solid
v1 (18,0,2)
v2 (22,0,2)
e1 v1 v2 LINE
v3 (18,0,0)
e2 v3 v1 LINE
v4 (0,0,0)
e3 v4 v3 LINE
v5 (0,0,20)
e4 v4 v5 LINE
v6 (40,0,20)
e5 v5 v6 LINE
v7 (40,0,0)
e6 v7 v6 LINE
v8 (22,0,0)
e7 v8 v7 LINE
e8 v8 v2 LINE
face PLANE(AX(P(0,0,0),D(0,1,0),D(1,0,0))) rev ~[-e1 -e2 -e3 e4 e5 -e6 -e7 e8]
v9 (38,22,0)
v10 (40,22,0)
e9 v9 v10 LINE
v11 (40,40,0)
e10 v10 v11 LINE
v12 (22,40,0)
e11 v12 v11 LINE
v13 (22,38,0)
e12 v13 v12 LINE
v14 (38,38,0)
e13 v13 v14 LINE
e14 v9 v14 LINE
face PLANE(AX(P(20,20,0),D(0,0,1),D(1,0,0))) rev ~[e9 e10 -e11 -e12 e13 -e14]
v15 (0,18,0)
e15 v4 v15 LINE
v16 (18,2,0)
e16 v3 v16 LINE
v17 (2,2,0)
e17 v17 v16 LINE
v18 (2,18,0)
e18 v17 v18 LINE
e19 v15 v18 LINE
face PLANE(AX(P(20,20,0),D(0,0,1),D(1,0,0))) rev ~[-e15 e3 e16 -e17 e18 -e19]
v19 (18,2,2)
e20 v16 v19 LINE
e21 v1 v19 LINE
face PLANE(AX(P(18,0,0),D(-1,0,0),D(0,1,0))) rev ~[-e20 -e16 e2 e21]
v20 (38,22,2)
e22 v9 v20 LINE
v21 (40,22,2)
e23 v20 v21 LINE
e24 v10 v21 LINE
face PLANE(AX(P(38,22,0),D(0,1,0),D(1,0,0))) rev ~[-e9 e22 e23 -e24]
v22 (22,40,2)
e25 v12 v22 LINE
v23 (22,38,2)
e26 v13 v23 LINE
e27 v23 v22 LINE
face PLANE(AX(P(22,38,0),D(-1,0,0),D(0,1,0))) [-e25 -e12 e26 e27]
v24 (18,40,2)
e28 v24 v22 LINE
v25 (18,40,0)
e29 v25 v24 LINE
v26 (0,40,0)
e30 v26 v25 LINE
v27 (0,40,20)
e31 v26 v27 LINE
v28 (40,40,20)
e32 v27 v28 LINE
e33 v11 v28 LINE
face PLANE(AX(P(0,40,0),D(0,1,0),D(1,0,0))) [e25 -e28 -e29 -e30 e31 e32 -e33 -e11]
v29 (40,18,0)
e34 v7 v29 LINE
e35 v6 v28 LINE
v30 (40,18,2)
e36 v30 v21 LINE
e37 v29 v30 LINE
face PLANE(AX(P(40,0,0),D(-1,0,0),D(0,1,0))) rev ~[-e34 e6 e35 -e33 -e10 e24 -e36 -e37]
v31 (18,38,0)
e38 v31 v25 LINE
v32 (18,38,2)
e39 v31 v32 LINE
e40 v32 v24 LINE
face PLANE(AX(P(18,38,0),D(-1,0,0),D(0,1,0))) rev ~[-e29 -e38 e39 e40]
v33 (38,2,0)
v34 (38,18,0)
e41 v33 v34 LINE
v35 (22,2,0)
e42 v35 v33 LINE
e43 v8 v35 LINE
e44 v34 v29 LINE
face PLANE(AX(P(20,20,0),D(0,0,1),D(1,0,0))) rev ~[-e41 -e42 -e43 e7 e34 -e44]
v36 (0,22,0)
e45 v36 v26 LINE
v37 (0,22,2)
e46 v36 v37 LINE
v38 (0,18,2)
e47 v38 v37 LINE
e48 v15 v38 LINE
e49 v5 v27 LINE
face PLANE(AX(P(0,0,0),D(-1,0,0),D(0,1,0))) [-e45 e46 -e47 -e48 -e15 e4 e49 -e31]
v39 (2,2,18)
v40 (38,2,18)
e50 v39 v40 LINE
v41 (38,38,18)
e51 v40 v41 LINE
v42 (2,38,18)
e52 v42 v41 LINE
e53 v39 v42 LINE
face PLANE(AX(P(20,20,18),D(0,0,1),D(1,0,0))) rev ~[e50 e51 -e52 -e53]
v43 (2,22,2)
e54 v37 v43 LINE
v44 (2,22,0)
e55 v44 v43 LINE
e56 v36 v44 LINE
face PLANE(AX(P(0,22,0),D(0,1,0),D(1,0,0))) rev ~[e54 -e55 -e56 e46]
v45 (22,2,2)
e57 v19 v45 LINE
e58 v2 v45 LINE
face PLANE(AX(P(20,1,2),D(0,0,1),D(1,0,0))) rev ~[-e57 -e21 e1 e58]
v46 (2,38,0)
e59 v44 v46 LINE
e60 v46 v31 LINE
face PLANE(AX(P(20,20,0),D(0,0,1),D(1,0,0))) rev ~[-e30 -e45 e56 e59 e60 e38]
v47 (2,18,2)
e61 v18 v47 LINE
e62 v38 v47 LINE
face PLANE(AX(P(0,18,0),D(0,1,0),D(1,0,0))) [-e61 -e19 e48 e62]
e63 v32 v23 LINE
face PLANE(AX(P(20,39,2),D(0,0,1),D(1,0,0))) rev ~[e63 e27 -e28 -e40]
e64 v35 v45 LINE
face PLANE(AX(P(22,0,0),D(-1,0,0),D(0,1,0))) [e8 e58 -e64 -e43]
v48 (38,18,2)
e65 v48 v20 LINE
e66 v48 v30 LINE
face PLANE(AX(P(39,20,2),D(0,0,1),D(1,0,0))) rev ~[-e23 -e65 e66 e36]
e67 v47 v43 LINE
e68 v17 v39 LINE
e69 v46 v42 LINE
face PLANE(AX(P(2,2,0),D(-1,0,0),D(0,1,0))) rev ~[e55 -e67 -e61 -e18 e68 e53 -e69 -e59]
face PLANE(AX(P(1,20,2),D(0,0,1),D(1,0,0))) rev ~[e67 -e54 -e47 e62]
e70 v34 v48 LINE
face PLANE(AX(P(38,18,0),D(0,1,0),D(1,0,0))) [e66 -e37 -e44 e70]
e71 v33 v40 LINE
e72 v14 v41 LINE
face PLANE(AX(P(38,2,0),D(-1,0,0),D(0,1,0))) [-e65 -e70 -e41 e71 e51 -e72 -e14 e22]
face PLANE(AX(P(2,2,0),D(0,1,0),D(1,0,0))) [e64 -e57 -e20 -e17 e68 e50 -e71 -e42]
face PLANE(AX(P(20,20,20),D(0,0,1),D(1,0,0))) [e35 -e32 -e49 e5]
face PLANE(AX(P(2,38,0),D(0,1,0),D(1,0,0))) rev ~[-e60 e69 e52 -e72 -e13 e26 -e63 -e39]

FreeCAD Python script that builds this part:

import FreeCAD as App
import Part
import Sketcher
from FreeCAD import Vector


def add_polygon(sketch, points):
    """Adds a closed chain of lines whose ends are joined by coincident constraints."""
    first, n = sketch.GeometryCount, len(points)
    for a, b in zip(points, points[1:] + points[:1]):
        sketch.addGeometry(Part.LineSegment(App.Vector(*a, 0), App.Vector(*b, 0)), False)
    for i in range(n):
        sketch.addConstraint(Sketcher.Constraint("Coincident", first + i, 2, first + (i + 1) % n, 1))

doc = App.newDocument("Part")
body = doc.addObject("PartDesign::Body", "Body")

sketch1 = body.newObject("Sketcher::SketchObject", "Sketch")
sketch1.AttachmentSupport = (doc.getObject("XY_Plane"), [""])
sketch1.MapMode = "FlatFace"
add_polygon(sketch1, [(18, 40), (18, 38), (22, 38), (22, 40)])
sketch1.addConstraint(Sketcher.Constraint("Vertical", 0))
sketch1.addConstraint(Sketcher.Constraint("Horizontal", 1))
sketch1.addConstraint(Sketcher.Constraint("Vertical", 2))
sketch1.addConstraint(Sketcher.Constraint("Horizontal", 3))
sketch1.addConstraint(Sketcher.Constraint("DistanceX", 1, 1, 1, 2, 4.0))
sketch1.addConstraint(Sketcher.Constraint("DistanceY", 0, 2, 0, 1, 2.0))
sketch1.addConstraint(Sketcher.Constraint("DistanceX", -1, 1, 0, 2, 18.0))
sketch1.addConstraint(Sketcher.Constraint("DistanceY", -1, 1, 0, 2, 38.0))
pad1 = body.newObject("PartDesign::Pad", "Pad")
pad1.Profile = sketch1
pad1.Length = 2
body2 = doc.addObject("PartDesign::Body", "Body001")

sketch2 = body2.newObject("Sketcher::SketchObject", "Sketch001")
sketch2.AttachmentSupport = (doc.getObject("XY_Plane001"), [""])
sketch2.MapMode = "FlatFace"
add_polygon(sketch2, [(38, 22), (38, 18), (40, 18), (40, 22)])
sketch2.addConstraint(Sketcher.Constraint("Vertical", 0))
sketch2.addConstraint(Sketcher.Constraint("Horizontal", 1))
sketch2.addConstraint(Sketcher.Constraint("Vertical", 2))
sketch2.addConstraint(Sketcher.Constraint("Horizontal", 3))
sketch2.addConstraint(Sketcher.Constraint("DistanceX", 1, 1, 1, 2, 2.0))
sketch2.addConstraint(Sketcher.Constraint("DistanceY", 0, 2, 0, 1, 4.0))
sketch2.addConstraint(Sketcher.Constraint("DistanceX", -1, 1, 0, 2, 38.0))
sketch2.addConstraint(Sketcher.Constraint("DistanceY", -1, 1, 0, 2, 18.0))
pad2 = body2.newObject("PartDesign::Pad", "Pad001")
pad2.Profile = sketch2
pad2.Length = 2
body3 = doc.addObject("PartDesign::Body", "Body002")

sketch3 = body3.newObject("Sketcher::SketchObject", "Sketch002")
sketch3.AttachmentSupport = (doc.getObject("XY_Plane002"), [""])
sketch3.MapMode = "FlatFace"
add_polygon(sketch3, [(18, 2), (18, 0), (22, 0), (22, 2)])
sketch3.addConstraint(Sketcher.Constraint("Vertical", 0))
sketch3.addConstraint(Sketcher.Constraint("Horizontal", 1))
sketch3.addConstraint(Sketcher.Constraint("Vertical", 2))
sketch3.addConstraint(Sketcher.Constraint("Horizontal", 3))
sketch3.addConstraint(Sketcher.Constraint("PointOnObject", 0, 2, -1))
sketch3.addConstraint(Sketcher.Constraint("DistanceX", 1, 1, 1, 2, 4.0))
sketch3.addConstraint(Sketcher.Constraint("DistanceY", 0, 2, 0, 1, 2.0))
sketch3.addConstraint(Sketcher.Constraint("DistanceX", -1, 1, 0, 2, 18.0))
pad3 = body3.newObject("PartDesign::Pad", "Pad002")
pad3.Profile = sketch3
pad3.Length = 2
body4 = doc.addObject("PartDesign::Body", "Body003")

sketch4 = body4.newObject("Sketcher::SketchObject", "Sketch003")
sketch4.AttachmentSupport = (doc.getObject("XY_Plane003"), [""])
sketch4.MapMode = "FlatFace"
add_polygon(sketch4, [(0, 22), (0, 18), (2, 18), (2, 22)])
sketch4.addConstraint(Sketcher.Constraint("Vertical", 0))
sketch4.addConstraint(Sketcher.Constraint("Horizontal", 1))
sketch4.addConstraint(Sketcher.Constraint("Vertical", 2))
sketch4.addConstraint(Sketcher.Constraint("Horizontal", 3))
sketch4.addConstraint(Sketcher.Constraint("PointOnObject", 0, 2, -2))
sketch4.addConstraint(Sketcher.Constraint("DistanceX", 1, 1, 1, 2, 2.0))
sketch4.addConstraint(Sketcher.Constraint("DistanceY", 0, 2, 0, 1, 4.0))
sketch4.addConstraint(Sketcher.Constraint("DistanceY", -1, 1, 0, 2, 18.0))
pad4 = body4.newObject("PartDesign::Pad", "Pad003")
pad4.Profile = sketch4
pad4.Length = 2
body5 = doc.addObject("PartDesign::Body", "Body004")

sketch5 = body5.newObject("Sketcher::SketchObject", "Sketch004")
sketch5.AttachmentSupport = (doc.getObject("XY_Plane004"), [""])
sketch5.MapMode = "FlatFace"
add_polygon(sketch5, [(2, 38), (2, 2), (38, 2), (38, 38)])
sketch5.addConstraint(Sketcher.Constraint("Vertical", 0))
sketch5.addConstraint(Sketcher.Constraint("Horizontal", 1))
sketch5.addConstraint(Sketcher.Constraint("Vertical", 2))
sketch5.addConstraint(Sketcher.Constraint("Horizontal", 3))
sketch5.addConstraint(Sketcher.Constraint("Equal", 3, 0))
sketch5.addConstraint(Sketcher.Constraint("DistanceX", 1, 1, 1, 2, 36.0))
sketch5.addConstraint(Sketcher.Constraint("DistanceX", -1, 1, 0, 2, 2.0))
sketch5.addConstraint(Sketcher.Constraint("DistanceY", -1, 1, 0, 2, 2.0))
pad5 = body5.newObject("PartDesign::Pad", "Pad004")
pad5.Profile = sketch5
pad5.Length = 18
body6 = doc.addObject("PartDesign::Body", "Body005")

sketch6 = body6.newObject("Sketcher::SketchObject", "Sketch005")
sketch6.AttachmentSupport = (doc.getObject("XY_Plane005"), [""])
sketch6.MapMode = "FlatFace"
add_polygon(sketch6, [(0, 40), (0, 0), (40, 0), (40, 40)])
sketch6.addConstraint(Sketcher.Constraint("Vertical", 0))
sketch6.addConstraint(Sketcher.Constraint("Horizontal", 1))
sketch6.addConstraint(Sketcher.Constraint("Vertical", 2))
sketch6.addConstraint(Sketcher.Constraint("Horizontal", 3))
sketch6.addConstraint(Sketcher.Constraint("Coincident", 0, 2, -1, 1))
sketch6.addConstraint(Sketcher.Constraint("Equal", 3, 0))
sketch6.addConstraint(Sketcher.Constraint("DistanceX", 1, 1, 1, 2, 40.0))
pad6 = body6.newObject("PartDesign::Pad", "Pad005")
pad6.Profile = sketch6
pad6.Length = 20
doc.recompute()

boolean = body6.newObject("PartDesign::Boolean", "Boolean")
boolean.Type = "Cut"
boolean.addObjects([body5])
doc.recompute()

boolean2 = body6.newObject("PartDesign::Boolean", "Boolean001")
boolean2.Type = "Cut"
boolean2.addObjects([body4])
doc.recompute()

boolean3 = body6.newObject("PartDesign::Boolean", "Boolean002")
boolean3.Type = "Cut"
boolean3.addObjects([body3])
doc.recompute()

boolean4 = body6.newObject("PartDesign::Boolean", "Boolean003")
boolean4.Type = "Cut"
boolean4.addObjects([body2])
doc.recompute()

boolean5 = body6.newObject("PartDesign::Boolean", "Boolean004")
boolean5.Type = "Cut"
boolean5.addObjects([body])

doc.recompute()
